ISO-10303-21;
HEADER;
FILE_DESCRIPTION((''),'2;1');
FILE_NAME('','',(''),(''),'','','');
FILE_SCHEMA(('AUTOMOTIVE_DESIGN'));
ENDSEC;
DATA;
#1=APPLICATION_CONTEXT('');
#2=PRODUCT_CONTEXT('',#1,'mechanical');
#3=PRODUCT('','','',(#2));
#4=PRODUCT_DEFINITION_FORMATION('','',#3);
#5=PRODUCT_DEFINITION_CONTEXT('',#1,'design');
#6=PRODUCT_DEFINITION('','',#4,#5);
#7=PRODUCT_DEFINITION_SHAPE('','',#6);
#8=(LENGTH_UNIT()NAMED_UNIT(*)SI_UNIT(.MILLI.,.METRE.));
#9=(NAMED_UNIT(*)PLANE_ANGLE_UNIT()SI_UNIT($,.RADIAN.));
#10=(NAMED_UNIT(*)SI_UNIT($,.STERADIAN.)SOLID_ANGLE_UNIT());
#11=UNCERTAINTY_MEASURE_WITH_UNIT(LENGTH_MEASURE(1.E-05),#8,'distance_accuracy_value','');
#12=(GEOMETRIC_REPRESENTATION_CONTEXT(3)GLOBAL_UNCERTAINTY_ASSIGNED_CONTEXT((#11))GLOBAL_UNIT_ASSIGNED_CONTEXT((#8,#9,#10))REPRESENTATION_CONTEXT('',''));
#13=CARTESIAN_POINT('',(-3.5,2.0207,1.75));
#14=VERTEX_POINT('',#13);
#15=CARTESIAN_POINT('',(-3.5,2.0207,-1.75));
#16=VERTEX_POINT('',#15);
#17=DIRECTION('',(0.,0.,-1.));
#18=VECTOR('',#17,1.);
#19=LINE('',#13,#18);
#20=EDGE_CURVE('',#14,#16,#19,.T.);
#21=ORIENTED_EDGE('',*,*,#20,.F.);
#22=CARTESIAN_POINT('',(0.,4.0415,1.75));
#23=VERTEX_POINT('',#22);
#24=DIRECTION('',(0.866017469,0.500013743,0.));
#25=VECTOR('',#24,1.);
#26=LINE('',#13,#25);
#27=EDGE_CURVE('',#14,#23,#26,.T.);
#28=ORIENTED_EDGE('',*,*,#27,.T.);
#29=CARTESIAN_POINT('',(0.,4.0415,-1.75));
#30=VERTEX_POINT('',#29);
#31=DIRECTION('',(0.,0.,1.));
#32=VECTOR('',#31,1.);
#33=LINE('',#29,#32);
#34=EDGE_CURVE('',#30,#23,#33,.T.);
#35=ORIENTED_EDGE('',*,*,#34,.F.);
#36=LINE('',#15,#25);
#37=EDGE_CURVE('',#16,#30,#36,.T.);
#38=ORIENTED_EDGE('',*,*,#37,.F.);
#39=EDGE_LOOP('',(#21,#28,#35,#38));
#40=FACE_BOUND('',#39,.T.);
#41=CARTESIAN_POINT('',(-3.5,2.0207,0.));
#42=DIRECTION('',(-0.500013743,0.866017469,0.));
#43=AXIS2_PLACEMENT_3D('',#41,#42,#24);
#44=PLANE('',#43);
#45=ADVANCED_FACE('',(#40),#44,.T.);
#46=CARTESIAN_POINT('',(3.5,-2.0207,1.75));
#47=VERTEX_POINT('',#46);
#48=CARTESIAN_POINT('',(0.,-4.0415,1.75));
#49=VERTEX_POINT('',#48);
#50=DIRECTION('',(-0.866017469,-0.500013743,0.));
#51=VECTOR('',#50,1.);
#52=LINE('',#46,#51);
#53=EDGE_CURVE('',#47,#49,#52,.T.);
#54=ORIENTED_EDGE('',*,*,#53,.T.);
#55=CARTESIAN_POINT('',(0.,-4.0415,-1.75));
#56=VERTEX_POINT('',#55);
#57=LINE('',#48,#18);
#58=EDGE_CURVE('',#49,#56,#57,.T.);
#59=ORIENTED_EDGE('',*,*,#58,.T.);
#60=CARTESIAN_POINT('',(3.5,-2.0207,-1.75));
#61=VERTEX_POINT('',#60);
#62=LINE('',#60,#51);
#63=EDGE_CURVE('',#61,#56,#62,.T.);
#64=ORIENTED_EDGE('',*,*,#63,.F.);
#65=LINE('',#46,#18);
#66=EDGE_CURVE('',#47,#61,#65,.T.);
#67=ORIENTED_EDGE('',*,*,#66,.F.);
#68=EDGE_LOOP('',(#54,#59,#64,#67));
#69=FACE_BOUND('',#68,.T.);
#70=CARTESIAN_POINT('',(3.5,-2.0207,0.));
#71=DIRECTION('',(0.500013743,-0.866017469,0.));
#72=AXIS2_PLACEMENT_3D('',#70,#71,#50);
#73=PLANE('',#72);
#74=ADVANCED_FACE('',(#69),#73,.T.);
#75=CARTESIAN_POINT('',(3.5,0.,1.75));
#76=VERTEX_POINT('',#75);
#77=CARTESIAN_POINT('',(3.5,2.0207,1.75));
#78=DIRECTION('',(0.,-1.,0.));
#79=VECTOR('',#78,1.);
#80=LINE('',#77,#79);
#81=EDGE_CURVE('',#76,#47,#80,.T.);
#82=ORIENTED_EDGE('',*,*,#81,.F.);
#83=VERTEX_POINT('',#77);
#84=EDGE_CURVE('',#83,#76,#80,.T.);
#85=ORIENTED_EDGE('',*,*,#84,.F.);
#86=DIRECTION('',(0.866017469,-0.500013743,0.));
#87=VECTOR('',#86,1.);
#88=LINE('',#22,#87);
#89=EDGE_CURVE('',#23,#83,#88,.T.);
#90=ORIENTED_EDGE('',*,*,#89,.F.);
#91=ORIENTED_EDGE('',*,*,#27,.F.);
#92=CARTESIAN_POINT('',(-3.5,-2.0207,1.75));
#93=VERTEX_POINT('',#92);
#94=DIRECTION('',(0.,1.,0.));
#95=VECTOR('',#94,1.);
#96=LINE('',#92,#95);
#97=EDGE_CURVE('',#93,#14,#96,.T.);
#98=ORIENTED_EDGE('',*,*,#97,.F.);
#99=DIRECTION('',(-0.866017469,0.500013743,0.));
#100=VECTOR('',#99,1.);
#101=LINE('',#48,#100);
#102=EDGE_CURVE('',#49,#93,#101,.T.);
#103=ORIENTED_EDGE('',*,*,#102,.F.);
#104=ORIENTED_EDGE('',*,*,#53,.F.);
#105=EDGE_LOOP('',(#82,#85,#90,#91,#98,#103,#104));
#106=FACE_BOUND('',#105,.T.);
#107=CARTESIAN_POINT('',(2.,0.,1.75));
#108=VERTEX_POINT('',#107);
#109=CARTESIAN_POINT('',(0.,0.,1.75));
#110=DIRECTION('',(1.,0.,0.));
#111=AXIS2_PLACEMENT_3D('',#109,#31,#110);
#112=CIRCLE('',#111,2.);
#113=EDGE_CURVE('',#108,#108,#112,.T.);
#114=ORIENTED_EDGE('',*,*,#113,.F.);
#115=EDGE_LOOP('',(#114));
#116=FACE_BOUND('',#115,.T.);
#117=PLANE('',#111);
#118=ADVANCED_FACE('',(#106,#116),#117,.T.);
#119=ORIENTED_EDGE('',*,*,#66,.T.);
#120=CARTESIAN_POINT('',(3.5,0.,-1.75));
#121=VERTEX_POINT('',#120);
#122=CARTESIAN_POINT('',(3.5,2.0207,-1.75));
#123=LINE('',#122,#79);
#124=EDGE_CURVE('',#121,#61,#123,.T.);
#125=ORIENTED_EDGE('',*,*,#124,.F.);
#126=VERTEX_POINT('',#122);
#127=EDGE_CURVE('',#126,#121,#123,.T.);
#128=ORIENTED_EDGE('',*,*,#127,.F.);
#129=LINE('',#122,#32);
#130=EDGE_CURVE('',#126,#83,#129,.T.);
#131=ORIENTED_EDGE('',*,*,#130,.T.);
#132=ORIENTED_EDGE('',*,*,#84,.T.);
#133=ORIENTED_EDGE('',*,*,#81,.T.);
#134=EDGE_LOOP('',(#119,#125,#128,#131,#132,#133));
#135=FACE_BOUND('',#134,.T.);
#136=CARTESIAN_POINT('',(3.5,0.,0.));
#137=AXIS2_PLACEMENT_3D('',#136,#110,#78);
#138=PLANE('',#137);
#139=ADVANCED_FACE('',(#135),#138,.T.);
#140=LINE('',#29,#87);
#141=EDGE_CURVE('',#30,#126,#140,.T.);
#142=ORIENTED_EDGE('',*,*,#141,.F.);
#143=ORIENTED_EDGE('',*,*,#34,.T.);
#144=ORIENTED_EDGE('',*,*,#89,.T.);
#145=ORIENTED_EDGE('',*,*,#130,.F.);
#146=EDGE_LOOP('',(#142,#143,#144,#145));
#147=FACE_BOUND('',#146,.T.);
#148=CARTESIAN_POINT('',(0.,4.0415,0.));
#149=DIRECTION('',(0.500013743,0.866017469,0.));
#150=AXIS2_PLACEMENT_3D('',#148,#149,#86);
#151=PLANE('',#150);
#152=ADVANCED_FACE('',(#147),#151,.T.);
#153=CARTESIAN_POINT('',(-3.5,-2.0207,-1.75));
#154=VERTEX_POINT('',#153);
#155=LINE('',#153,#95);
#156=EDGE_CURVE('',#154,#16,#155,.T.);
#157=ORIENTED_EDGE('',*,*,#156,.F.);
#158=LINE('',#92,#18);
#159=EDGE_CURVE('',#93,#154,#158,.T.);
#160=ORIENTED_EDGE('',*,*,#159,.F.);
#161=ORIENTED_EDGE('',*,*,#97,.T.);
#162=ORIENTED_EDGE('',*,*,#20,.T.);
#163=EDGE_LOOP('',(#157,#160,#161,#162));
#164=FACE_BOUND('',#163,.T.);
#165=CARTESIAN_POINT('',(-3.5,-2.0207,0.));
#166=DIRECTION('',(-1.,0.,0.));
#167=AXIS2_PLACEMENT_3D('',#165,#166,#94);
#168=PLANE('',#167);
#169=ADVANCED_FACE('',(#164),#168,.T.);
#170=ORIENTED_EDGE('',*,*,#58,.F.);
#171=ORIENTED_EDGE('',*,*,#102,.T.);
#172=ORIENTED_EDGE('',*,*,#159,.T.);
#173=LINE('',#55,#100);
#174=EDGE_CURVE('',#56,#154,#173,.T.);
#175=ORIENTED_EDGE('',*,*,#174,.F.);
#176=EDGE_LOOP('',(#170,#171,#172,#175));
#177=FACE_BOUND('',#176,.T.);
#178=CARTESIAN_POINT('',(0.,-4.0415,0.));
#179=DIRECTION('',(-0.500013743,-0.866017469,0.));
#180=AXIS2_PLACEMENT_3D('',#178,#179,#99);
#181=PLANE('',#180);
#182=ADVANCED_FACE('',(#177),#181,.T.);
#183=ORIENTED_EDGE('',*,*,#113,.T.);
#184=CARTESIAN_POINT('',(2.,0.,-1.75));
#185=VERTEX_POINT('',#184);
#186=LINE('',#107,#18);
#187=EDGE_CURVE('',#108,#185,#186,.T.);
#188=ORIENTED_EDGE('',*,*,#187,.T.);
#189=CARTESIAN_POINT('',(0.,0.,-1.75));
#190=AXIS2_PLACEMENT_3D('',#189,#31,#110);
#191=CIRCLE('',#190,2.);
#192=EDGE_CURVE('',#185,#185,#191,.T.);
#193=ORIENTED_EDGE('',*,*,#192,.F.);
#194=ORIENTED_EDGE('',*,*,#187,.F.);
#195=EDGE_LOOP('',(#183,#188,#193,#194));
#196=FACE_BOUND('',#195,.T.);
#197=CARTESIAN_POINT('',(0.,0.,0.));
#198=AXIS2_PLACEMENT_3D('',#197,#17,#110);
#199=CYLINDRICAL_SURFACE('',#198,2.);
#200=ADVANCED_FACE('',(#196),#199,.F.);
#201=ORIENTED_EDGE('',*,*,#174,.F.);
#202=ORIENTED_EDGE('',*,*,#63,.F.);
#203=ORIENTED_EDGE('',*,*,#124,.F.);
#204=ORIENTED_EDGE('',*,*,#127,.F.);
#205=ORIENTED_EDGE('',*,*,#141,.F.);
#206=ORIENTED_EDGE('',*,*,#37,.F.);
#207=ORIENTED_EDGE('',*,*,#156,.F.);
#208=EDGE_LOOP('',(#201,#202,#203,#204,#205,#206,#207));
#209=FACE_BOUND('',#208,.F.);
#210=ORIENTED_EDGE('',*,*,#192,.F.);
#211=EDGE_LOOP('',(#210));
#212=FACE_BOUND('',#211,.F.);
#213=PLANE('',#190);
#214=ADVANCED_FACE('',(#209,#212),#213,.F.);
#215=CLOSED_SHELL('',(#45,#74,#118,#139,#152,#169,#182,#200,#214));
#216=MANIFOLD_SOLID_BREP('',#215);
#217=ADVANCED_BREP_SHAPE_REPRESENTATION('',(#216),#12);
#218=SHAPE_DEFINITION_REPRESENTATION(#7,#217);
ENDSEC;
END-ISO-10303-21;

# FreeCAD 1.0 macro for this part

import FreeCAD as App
import Part
import Sketcher
from FreeCAD import Vector
Q = App.Units.Quantity


def add_polygon(sketch, points):
    """Adds a closed chain of lines whose ends are joined by coincident constraints."""
    first, n = sketch.GeometryCount, len(points)
    for a, b in zip(points, points[1:] + points[:1]):
        sketch.addGeometry(Part.LineSegment(App.Vector(*a, 0), App.Vector(*b, 0)), False)
    for i in range(n):
        sketch.addConstraint(Sketcher.Constraint("Coincident", first + i, 2, first + (i + 1) % n, 1))

doc = App.newDocument("Part")
params = doc.addObject("Spreadsheet::Sheet", "Params")
for row, (alias, value) in enumerate([
    ("sketch1_diameter", "4 mm"),
    ("pad1_length", "3.5 mm"),
], start=1):
    params.set(f"A{row}", alias)
    params.set(f"B{row}", "=" + value)
    params.setAlias(f"B{row}", alias)

body = doc.addObject("PartDesign::Body", "Body")

# Sketch on XY plane
sketch1 = doc.addObject("Sketcher::SketchObject", "Sketch")
body.addObject(sketch1)
sketch1.AttachmentSupport = (doc.XY_Plane, [""])
sketch1.MapMode = "FlatFace"
add_polygon(sketch1, [(3.5, -2), (3.5, 0), (3.5, 2), (0, 4), (-3.5, 2), (-3.5, -2), (0, -4)])  # lines 0-6
sketch1.addGeometry(Part.Circle(Vector(0, 0, 0), Vector(0, 0, 1), 2), False)  # 7
sketch1.addConstraint([
    Sketcher.Constraint("Vertical", 0),
    Sketcher.Constraint("Vertical", 1),
    Sketcher.Constraint("Vertical", 4),
    Sketcher.Constraint("Coincident", 7, 3, -1, 1),
    Sketcher.Constraint("Symmetric", 1, 2, 4, 2, -1, 1),
    Sketcher.Constraint("Symmetric", 2, 2, 5, 2, -1, 1),
    Sketcher.Constraint("PointOnObject", 0, 2, -1),
    Sketcher.Constraint("PointOnObject", 2, 2, -2),
    Sketcher.Constraint("Parallel", 3, 6),
    Sketcher.Constraint("Horizontal", 1, 2, 3, 2),
    Sketcher.Constraint("Diameter", 7, 4.0),
    Sketcher.Constraint("DistanceX", -1, 1, 0, 2, 3.5),
    Sketcher.Constraint("Angle", 2, Q("149.999 deg")),
    Sketcher.Constraint("DistanceY", 0, 1, 0, 2, 2.0207),
])
sketch1.setExpression("Constraints[17]", "Params.sketch1_diameter")
pad1 = doc.addObject("PartDesign::Pad", "Pad")
body.addObject(pad1)
pad1.Profile = sketch1
pad1.setExpression("Length", "Params.pad1_length")
pad1.Midplane = True

doc.recompute()
